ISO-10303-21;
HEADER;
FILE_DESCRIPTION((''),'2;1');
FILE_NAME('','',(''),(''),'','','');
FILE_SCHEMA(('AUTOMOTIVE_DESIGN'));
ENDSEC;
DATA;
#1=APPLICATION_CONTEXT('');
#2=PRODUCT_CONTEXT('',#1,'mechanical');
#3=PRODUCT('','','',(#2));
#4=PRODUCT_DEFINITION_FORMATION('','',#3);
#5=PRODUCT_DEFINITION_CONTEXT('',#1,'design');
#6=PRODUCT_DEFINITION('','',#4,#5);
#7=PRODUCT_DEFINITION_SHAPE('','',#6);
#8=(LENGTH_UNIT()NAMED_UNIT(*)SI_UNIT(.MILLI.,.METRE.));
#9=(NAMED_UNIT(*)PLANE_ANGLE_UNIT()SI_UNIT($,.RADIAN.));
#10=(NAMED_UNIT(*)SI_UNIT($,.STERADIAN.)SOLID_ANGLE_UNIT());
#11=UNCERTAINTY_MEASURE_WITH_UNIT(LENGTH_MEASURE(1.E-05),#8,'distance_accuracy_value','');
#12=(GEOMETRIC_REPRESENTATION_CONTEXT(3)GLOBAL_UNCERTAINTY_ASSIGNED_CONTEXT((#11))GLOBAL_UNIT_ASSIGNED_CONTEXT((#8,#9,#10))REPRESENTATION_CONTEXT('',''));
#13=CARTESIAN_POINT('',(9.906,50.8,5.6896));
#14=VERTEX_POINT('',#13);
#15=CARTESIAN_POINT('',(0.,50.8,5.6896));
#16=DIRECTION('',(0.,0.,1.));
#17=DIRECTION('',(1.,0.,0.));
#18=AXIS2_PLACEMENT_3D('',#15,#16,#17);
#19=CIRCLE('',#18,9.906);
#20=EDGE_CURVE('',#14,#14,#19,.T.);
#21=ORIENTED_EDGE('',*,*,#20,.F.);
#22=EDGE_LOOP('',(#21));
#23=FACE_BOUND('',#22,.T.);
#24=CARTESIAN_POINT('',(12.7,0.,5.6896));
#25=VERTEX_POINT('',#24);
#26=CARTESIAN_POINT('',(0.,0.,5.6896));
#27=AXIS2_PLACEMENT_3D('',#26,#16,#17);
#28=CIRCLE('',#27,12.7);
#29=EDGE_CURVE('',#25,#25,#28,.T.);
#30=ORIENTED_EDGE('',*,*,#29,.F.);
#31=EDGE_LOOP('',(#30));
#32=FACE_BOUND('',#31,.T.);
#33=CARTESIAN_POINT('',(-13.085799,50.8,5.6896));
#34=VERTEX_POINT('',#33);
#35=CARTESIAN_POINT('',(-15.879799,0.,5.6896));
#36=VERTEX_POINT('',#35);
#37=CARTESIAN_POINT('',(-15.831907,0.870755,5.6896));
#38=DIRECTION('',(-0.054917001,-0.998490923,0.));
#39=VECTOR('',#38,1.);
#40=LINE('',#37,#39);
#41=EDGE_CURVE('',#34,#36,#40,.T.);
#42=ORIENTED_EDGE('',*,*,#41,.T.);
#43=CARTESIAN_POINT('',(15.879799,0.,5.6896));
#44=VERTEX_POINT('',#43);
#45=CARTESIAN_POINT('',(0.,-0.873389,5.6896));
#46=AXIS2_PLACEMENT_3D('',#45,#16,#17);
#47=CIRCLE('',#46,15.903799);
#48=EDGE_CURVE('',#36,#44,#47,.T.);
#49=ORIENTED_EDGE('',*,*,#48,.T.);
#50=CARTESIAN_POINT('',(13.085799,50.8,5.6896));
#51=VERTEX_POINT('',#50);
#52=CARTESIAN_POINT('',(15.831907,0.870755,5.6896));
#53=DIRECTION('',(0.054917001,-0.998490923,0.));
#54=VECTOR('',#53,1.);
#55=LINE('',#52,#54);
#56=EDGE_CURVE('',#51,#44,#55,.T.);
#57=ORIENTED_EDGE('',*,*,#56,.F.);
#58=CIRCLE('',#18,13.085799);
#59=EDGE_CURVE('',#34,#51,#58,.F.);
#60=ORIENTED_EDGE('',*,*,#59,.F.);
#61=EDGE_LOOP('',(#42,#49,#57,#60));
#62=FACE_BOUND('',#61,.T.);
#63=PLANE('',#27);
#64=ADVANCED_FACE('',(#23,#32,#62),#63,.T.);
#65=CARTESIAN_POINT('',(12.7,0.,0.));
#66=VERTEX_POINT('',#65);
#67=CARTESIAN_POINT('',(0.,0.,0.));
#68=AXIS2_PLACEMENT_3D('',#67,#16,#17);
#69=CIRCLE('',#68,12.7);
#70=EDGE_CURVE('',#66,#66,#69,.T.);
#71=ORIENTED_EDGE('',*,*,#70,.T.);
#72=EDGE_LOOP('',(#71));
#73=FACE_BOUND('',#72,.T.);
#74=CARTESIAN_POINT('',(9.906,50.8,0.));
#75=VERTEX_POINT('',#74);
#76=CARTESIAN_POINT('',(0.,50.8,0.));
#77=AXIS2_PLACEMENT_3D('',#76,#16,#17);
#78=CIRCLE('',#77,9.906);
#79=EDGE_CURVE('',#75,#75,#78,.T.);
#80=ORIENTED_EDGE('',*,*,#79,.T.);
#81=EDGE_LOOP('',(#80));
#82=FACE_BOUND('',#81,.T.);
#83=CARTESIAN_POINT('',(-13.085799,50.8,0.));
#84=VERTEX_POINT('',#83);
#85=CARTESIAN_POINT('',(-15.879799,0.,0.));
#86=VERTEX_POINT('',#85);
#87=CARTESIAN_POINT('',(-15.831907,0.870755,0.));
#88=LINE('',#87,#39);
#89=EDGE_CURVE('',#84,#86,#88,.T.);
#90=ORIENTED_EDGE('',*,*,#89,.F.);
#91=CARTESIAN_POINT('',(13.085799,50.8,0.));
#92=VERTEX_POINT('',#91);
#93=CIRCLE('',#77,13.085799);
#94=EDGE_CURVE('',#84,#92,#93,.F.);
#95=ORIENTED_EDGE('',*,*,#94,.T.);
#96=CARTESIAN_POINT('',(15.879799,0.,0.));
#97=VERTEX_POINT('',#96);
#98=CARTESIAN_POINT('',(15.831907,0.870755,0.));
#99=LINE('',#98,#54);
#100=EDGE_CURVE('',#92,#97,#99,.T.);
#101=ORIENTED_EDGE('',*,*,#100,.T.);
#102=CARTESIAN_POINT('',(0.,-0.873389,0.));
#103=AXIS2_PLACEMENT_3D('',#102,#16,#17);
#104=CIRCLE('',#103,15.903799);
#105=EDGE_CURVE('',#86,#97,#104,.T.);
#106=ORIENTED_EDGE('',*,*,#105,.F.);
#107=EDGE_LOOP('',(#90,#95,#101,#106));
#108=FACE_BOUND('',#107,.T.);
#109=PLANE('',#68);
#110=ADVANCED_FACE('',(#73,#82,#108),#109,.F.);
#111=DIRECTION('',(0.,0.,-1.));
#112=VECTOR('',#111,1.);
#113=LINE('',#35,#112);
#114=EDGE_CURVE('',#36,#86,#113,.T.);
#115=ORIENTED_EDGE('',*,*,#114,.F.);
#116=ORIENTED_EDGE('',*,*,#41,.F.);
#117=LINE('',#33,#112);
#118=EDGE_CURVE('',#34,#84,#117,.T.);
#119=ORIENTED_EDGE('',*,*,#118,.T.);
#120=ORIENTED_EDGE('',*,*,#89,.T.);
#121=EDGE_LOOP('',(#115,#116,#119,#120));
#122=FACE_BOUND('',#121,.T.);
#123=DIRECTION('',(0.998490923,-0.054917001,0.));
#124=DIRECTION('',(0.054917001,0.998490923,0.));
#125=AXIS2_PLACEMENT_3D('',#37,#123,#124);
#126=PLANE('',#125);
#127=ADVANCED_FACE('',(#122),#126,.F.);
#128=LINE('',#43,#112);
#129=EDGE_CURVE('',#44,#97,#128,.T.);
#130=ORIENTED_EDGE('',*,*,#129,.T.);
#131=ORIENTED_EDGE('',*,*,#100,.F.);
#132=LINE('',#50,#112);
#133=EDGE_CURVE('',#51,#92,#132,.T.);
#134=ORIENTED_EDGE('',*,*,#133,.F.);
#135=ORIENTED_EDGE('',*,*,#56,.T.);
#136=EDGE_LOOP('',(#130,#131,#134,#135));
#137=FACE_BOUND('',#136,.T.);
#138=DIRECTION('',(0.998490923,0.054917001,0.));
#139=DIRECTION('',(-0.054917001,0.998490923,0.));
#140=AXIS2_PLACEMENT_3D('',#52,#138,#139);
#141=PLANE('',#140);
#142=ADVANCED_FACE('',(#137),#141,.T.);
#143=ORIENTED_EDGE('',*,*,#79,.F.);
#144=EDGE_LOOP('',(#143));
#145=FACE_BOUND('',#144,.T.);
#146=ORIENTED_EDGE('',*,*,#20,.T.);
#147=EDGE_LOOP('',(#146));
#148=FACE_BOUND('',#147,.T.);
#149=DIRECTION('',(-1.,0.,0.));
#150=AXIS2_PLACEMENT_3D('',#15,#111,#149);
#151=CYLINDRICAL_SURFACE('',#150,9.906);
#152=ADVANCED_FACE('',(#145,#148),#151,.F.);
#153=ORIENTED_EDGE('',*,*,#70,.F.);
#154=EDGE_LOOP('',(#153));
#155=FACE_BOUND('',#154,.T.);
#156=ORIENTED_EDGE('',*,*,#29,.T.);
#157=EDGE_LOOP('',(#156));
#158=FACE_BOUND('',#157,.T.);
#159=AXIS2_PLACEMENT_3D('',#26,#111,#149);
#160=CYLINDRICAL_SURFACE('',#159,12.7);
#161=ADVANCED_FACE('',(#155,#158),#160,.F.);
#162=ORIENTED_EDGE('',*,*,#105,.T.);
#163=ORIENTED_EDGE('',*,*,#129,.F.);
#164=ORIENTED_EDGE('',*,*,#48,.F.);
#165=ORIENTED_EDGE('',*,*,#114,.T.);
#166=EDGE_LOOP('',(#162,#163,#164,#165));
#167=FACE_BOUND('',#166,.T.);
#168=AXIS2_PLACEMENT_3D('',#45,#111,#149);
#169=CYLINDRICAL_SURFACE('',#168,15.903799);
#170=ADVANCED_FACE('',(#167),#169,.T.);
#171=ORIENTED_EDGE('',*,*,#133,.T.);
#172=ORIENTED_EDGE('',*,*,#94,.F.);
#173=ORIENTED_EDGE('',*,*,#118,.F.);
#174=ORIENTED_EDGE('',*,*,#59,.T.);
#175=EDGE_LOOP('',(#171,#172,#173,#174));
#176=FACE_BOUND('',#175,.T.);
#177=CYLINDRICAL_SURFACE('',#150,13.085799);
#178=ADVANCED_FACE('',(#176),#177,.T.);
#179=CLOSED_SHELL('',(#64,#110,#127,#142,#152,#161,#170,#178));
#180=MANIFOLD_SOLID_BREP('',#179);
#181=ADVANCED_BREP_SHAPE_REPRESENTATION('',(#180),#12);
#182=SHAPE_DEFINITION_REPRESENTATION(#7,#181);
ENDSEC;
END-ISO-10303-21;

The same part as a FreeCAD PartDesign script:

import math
import FreeCAD as App
import Part
import Sketcher
Q = App.Units.Quantity

doc = App.newDocument("Part")
params = doc.addObject("Spreadsheet::Sheet", "Params")
for row, (alias, value) in enumerate([
    ("sketch1_diameter", "1 in"),
    ("sketch1_diameter2", "0.78 in"),
    ("pad1_length", "0.224 in"),
], start=1):
    params.set(f"A{row}", alias)
    params.set(f"B{row}", "=" + value)
    params.setAlias(f"B{row}", alias)

body = doc.addObject("PartDesign::Body", "Body")

# Sketch on XY plane
sketch1 = body.newObject("Sketcher::SketchObject", "Sketch")
sketch1.AttachmentSupport = (doc.getObject("XY_Plane"), [""])
sketch1.MapMode = "FlatFace"
sketch1.addGeometry(Part.ArcOfCircle(Part.Circle(App.Vector(0, 51, 0), App.Vector(0, 0, 1), 13), math.radians(0), math.radians(180)), False)
sketch1.addGeometry(Part.LineSegment(App.Vector(-13, 51, 0), App.Vector(-16, 0, 0)), False)
sketch1.addGeometry(Part.ArcOfCircle(Part.Circle(App.Vector(0, -1, 0), App.Vector(0, 0, 1), 16), math.radians(177), math.radians(363)), False)
sketch1.addGeometry(Part.LineSegment(App.Vector(16, 0, 0), App.Vector(13, 51, 0)), False)
sketch1.addGeometry(Part.Circle(App.Vector(0, 0, 0), App.Vector(0, 0, 1), 13), False)
sketch1.addGeometry(Part.Circle(App.Vector(0, 51, 0), App.Vector(0, 0, 1), 10), False)
sketch1.addConstraint(Sketcher.Constraint("Coincident", 0, 2, 1, 1))
sketch1.addConstraint(Sketcher.Constraint("Tangent", 1, 2, 2, 1))
sketch1.addConstraint(Sketcher.Constraint("Tangent", 2, 2, 3, 1))
sketch1.addConstraint(Sketcher.Constraint("Coincident", 3, 2, 0, 1))
sketch1.addConstraint(Sketcher.Constraint("Coincident", 4, 3, -1, 1))
sketch1.addConstraint(Sketcher.Constraint("Coincident", 5, 3, 0, 3))
sketch1.addConstraint(Sketcher.Constraint("Symmetric", 1, 2, 2, 2, -1, 1))
sketch1.addConstraint(Sketcher.Constraint("Symmetric", 0, 2, 3, 2, -2))
sketch1.addConstraint(Sketcher.Constraint("Horizontal", 5, 3, 0, 2))
sketch1.addConstraint(Sketcher.Constraint("Diameter", 4, Q("1 in")))
sketch1.addConstraint(Sketcher.Constraint("Diameter", 5, Q("0.78 in")))
sketch1.addConstraint(Sketcher.Constraint("DistanceY", -1, 1, 0, 3, Q("2 in")))
sketch1.addConstraint(Sketcher.Constraint("Radius", 0, Q("13.085799 mm")))
sketch1.addConstraint(Sketcher.Constraint("Radius", 2, Q("15.903799 mm")))
sketch1.setExpression("Constraints[9]", "Params.sketch1_diameter")
sketch1.setExpression("Constraints[10]", "Params.sketch1_diameter2")
pad1 = body.newObject("PartDesign::Pad", "Pad")
pad1.Profile = sketch1
pad1.setExpression("Length", "Params.pad1_length")

doc.recompute()
